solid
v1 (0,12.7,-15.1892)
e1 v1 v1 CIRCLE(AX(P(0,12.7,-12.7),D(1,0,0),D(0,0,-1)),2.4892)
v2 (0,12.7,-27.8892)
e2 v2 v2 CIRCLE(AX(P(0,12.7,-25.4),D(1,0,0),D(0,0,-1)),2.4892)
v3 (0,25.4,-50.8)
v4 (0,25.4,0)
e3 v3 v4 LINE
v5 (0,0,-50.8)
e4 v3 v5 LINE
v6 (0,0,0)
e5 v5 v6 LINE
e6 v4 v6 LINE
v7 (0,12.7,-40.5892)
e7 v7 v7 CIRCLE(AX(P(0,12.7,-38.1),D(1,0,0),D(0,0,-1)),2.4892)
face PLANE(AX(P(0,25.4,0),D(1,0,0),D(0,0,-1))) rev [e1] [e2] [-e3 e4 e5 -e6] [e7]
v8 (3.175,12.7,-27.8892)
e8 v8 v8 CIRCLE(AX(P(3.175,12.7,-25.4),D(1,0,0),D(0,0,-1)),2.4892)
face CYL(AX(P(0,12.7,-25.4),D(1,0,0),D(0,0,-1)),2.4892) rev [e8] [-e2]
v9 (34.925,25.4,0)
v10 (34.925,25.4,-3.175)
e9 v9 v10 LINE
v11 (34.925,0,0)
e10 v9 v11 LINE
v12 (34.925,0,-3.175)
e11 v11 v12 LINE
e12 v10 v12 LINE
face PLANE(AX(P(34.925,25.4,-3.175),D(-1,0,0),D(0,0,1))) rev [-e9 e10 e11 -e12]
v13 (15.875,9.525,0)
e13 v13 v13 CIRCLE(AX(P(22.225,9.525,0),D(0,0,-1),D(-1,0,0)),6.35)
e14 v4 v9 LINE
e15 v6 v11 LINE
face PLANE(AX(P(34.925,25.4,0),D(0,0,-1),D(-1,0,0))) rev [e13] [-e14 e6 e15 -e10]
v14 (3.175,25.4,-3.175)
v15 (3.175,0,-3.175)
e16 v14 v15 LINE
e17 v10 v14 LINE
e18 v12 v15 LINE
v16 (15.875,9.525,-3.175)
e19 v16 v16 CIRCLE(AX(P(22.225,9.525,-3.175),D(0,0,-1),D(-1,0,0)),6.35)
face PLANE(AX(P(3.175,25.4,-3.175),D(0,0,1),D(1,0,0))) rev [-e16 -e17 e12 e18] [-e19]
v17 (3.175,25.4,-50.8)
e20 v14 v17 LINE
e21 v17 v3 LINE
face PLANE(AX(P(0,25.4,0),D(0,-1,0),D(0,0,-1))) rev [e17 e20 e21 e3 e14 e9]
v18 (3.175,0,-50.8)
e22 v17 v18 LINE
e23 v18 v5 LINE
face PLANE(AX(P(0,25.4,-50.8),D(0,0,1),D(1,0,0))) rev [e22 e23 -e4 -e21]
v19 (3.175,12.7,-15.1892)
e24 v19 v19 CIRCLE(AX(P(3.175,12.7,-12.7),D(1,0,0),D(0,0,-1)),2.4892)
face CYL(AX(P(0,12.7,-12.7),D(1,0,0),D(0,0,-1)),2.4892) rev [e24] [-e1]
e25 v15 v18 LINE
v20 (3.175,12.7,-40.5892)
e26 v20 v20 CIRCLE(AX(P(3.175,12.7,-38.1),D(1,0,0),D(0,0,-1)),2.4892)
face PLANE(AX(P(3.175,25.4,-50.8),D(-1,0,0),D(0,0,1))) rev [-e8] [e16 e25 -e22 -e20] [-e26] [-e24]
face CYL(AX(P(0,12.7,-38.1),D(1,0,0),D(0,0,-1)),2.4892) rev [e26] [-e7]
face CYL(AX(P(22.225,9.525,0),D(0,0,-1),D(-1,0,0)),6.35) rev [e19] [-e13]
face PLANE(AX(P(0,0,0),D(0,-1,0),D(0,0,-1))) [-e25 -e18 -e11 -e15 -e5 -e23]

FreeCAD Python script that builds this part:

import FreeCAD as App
import Part
import Sketcher
from FreeCAD import Vector
Q = App.Units.Quantity

doc = App.newDocument("Part")
body = doc.addObject("PartDesign::Body", "Body")

sketch1 = body.newObject("Sketcher::SketchObject", "Sketch")
sketch1.AttachmentSupport = (doc.getObject("XZ_Plane"), [""])
sketch1.MapMode = "FlatFace"
sketch1.addGeometry([
    Part.LineSegment(Vector(0, -50.8, 0), Vector(0, 0, 0)),
    Part.LineSegment(Vector(0, 0, 0), Vector(34.9, 0, 0)),
    Part.LineSegment(Vector(34.9, 0, 0), Vector(34.9, -3.2, 0)),
    Part.LineSegment(Vector(34.9, -3.2, 0), Vector(3.2, -3.2, 0)),
    Part.LineSegment(Vector(3.2, -3.2, 0), Vector(3.2, -50.8, 0)),
    Part.LineSegment(Vector(3.2, -50.8, 0), Vector(0, -50.8, 0)),
], False)
sketch1.addConstraint([
    Sketcher.Constraint("Coincident", 0, 2, 1, 1),
    Sketcher.Constraint("Coincident", 1, 2, 2, 1),
    Sketcher.Constraint("Coincident", 2, 2, 3, 1),
    Sketcher.Constraint("Coincident", 3, 2, 4, 1),
    Sketcher.Constraint("Coincident", 4, 2, 5, 1),
    Sketcher.Constraint("Coincident", 5, 2, 0, 1),
    Sketcher.Constraint("Vertical", 0),
    Sketcher.Constraint("Horizontal", 1),
    Sketcher.Constraint("Vertical", 2),
    Sketcher.Constraint("Horizontal", 3),
    Sketcher.Constraint("Vertical", 4),
    Sketcher.Constraint("Horizontal", 5),
    Sketcher.Constraint("Coincident", 0, 2, -1, 1),
    Sketcher.Constraint("Equal", 5, 2),
    Sketcher.Constraint("DistanceY", 0, 1, 0, 2, Q("2 in")),
    Sketcher.Constraint("DistanceX", 3, 2, 3, 1, Q("1.25 in")),
    Sketcher.Constraint("DistanceX", 1, 1, 1, 2, Q("1.375 in")),
])
pad1 = body.newObject("PartDesign::Pad", "Pad")
pad1.Profile = sketch1
pad1.Length = Q("1 in")
pad1.Reversed = True

sketch2 = body.newObject("Sketcher::SketchObject", "Sketch001")
sketch2.AttachmentSupport = (doc.getObject("XY_Plane"), [""])
sketch2.MapMode = "FlatFace"
sketch2.AttachmentOffset = App.Placement(Vector(0, 0, -0.125 * 25.4), App.Rotation())
sketch2.addGeometry(Part.Circle(Vector(22, 10, 0), Vector(0, 0, 1), 6), False)
sketch2.addConstraint([
    Sketcher.Constraint("Diameter", 0, Q("0.5 in")),
    Sketcher.Constraint("DistanceX", -1, 1, 0, 3, Q("0.875 in")),
    Sketcher.Constraint("DistanceY", -1, 1, 0, 3, Q("0.375 in")),
])
pocket1 = body.newObject("PartDesign::Pocket", "Pocket")
pocket1.Profile = sketch2
pocket1.Type = "ThroughAll"
pocket1.Reversed = True

sketch3 = body.newObject("Sketcher::SketchObject", "Sketch002")
sketch3.AttachmentSupport = (doc.getObject("YZ_Plane"), [""])
sketch3.MapMode = "FlatFace"
sketch3.AttachmentOffset = App.Placement(Vector(0, 0, 0.125 * 25.4), App.Rotation())
sketch3.addGeometry([
    Part.Circle(Vector(12.7, -25.4, 0), Vector(0, 0, 1), 2.5),
    Part.Circle(Vector(12.7, -12.7, 0), Vector(0, 0, 1), 2.5),
    Part.Circle(Vector(12.7, -38.1, 0), Vector(0, 0, 1), 2.5),
], False)
sketch3.addConstraint([
    Sketcher.Constraint("Equal", 0, 1),
    Sketcher.Constraint("Equal", 1, 2),
    Sketcher.Constraint("Vertical", 0, 3, 1, 3),
    Sketcher.Constraint("Vertical", 1, 3, 2, 3),
    Sketcher.Constraint("Diameter", 0, Q("0.196 in")),
    Sketcher.Constraint("DistanceY", 0, 3, -1, 1, Q("1 in")),
    Sketcher.Constraint("DistanceY", 2, 3, 1, 3, Q("1 in")),
    Sketcher.Constraint("DistanceX", -1, 1, 0, 3, Q("0.5 in")),
    Sketcher.Constraint("DistanceY", 1, 3, -1, 1, Q("0.5 in")),
])
pocket2 = body.newObject("PartDesign::Pocket", "Pocket001")
pocket2.Profile = sketch3
pocket2.Type = "ThroughAll"

doc.recompute()
